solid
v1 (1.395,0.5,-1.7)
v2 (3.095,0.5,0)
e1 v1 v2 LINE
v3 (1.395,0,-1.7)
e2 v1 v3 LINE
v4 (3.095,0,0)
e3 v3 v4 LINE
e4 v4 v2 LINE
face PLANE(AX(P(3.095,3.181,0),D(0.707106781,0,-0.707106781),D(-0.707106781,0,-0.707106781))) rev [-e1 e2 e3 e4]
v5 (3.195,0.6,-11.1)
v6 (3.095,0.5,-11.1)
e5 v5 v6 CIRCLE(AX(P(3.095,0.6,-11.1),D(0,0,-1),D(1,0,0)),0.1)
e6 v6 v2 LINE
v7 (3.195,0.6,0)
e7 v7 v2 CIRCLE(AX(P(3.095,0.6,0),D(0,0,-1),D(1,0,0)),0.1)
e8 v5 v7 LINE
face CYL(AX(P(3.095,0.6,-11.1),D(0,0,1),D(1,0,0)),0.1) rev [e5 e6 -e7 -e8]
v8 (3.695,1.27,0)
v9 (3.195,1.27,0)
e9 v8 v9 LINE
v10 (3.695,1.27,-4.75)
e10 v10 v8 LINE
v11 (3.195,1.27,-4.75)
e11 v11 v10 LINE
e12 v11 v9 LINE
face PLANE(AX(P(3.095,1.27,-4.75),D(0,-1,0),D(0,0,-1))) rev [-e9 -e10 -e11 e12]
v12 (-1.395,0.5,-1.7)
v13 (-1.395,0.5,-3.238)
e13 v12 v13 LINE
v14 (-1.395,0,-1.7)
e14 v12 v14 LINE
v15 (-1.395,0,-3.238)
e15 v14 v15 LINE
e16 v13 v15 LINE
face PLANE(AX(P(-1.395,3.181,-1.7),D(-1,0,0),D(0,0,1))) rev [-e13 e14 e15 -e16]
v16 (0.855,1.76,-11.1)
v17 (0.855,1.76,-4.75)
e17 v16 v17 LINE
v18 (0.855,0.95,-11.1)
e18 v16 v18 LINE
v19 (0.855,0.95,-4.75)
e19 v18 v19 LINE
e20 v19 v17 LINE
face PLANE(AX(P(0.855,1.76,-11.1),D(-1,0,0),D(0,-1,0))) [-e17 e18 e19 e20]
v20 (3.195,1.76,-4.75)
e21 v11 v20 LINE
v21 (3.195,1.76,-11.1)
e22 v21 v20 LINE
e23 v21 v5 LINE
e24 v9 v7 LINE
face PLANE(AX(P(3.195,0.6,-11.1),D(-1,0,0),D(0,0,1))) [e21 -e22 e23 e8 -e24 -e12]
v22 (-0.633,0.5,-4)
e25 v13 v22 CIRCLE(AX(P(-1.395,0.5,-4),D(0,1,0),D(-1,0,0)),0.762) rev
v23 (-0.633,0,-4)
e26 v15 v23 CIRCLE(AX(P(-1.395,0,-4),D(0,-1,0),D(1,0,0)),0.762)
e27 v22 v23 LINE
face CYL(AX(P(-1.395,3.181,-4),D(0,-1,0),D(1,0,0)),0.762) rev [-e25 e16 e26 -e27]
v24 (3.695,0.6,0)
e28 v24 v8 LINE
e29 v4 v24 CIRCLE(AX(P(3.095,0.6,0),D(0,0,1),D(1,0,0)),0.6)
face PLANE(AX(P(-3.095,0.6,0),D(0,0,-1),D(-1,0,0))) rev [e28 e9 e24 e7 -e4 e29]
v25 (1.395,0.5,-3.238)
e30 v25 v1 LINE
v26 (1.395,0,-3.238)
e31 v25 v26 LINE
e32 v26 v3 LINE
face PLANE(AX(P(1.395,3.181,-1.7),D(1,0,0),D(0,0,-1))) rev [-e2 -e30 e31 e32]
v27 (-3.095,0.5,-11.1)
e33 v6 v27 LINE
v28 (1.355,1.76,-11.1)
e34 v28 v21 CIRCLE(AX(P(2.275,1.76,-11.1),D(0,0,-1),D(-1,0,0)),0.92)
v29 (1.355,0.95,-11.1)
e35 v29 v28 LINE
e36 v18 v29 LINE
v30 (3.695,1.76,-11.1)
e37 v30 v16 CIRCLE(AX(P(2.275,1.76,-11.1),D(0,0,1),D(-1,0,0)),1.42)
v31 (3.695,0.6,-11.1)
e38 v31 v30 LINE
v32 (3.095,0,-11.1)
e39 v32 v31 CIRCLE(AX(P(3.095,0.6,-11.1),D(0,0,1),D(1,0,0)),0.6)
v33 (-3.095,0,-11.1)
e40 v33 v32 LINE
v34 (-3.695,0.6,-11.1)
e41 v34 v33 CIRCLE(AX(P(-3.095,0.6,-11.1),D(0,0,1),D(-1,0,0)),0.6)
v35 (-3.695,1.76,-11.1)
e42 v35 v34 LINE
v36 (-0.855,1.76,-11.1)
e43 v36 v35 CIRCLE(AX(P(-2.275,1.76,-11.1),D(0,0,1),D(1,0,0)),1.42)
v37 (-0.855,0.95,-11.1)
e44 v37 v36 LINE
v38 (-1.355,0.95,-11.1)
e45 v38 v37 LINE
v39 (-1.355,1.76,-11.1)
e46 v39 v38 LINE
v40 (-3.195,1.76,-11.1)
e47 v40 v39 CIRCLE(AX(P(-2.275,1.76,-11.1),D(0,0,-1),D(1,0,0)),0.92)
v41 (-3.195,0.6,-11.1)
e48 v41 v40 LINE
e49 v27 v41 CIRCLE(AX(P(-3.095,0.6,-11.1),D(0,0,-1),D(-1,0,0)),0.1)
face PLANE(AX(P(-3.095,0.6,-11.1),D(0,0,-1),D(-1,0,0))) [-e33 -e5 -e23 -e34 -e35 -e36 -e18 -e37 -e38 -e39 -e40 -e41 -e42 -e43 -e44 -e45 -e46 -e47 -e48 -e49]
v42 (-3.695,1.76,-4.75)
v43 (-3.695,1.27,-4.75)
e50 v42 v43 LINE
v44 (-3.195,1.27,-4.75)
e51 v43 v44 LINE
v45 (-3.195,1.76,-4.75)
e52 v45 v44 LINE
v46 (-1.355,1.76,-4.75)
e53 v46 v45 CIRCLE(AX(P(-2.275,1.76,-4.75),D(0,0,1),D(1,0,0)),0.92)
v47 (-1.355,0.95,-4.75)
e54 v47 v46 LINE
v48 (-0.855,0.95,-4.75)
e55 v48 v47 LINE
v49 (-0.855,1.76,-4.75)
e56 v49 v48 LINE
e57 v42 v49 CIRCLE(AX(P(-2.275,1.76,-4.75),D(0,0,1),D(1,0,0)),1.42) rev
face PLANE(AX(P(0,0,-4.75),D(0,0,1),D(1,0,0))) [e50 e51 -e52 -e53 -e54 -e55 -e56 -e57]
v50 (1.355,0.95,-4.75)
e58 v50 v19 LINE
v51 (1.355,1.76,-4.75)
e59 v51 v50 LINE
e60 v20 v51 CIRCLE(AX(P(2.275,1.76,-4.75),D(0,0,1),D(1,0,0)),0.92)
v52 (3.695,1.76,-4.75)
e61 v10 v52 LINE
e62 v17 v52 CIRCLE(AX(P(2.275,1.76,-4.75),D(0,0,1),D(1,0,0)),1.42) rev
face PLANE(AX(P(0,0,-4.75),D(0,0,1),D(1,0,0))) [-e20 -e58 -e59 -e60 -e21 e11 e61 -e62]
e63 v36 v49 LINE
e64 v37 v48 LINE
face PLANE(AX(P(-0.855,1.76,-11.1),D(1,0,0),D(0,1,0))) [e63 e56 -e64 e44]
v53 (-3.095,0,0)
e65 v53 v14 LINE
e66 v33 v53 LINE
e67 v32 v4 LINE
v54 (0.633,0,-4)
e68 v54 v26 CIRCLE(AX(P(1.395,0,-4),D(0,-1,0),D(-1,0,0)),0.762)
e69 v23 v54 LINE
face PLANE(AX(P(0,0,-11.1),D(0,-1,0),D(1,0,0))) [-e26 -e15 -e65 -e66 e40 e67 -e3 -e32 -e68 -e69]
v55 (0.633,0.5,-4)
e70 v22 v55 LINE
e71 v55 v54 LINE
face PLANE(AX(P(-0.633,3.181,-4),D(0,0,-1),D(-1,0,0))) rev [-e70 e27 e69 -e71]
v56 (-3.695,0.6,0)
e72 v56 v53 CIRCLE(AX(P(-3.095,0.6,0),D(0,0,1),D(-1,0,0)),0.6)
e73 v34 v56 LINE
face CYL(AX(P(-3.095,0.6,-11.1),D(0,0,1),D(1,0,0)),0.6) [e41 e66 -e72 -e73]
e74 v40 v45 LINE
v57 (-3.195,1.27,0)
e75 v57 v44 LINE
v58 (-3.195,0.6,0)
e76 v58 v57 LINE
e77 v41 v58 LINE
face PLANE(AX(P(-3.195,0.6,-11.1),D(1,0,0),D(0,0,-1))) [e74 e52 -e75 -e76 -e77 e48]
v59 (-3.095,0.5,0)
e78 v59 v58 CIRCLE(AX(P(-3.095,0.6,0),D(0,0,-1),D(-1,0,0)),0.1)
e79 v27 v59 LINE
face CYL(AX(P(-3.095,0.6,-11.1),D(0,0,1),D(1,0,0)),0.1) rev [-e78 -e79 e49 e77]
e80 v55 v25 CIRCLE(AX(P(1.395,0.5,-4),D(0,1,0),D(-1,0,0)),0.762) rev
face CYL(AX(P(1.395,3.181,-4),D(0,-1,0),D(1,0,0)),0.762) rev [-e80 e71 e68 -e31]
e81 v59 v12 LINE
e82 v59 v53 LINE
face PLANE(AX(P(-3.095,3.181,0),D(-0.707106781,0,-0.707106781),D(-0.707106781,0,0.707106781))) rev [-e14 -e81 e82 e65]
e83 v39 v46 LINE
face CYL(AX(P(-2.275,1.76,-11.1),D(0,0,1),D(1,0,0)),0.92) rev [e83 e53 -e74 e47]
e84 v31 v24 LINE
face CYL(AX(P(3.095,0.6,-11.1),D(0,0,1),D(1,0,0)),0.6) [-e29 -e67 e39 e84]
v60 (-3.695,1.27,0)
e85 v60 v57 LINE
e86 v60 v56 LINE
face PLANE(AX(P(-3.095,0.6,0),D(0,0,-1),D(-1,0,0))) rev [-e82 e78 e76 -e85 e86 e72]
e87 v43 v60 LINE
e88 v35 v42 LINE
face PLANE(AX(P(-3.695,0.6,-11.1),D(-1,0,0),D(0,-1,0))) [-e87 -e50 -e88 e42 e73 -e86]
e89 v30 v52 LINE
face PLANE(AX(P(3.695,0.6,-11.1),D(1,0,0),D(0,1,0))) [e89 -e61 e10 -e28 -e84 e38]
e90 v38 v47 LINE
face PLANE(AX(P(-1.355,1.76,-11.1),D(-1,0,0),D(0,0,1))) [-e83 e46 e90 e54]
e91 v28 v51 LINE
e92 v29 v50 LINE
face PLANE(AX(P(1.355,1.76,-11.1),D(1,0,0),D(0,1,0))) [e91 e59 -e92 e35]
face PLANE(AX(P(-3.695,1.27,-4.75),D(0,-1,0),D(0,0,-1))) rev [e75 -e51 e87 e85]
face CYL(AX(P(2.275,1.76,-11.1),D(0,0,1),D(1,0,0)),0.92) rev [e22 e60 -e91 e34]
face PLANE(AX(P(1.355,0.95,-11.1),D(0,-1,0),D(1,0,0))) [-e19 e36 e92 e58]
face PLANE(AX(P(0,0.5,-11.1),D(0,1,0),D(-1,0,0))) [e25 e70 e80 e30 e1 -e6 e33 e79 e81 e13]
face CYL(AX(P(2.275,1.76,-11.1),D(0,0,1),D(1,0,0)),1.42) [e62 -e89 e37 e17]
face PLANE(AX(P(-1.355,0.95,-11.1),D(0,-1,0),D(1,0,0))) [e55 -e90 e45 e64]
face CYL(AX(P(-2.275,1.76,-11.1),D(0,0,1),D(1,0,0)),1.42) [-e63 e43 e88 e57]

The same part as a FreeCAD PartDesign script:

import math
import FreeCAD as App
import Part
import Sketcher


def add_polygon(sketch, points):
    """Adds a closed chain of lines whose ends are joined by coincident constraints."""
    first, n = sketch.GeometryCount, len(points)
    for a, b in zip(points, points[1:] + points[:1]):
        sketch.addGeometry(Part.LineSegment(App.Vector(*a, 0), App.Vector(*b, 0)), False)
    for i in range(n):
        sketch.addConstraint(Sketcher.Constraint("Coincident", first + i, 2, first + (i + 1) % n, 1))

doc = App.newDocument("Part")
body = doc.addObject("PartDesign::Body", "Body")

sketch1 = doc.addObject("Sketcher::SketchObject", "Sketch")
body.addObject(sketch1)
sketch1.AttachmentSupport = (doc.XY_Plane, [""])
sketch1.MapMode = "FlatFace"
sketch1.addGeometry(Part.ArcOfCircle(Part.Circle(App.Vector(-3.1, 0.6, 0), App.Vector(0, 0, 1), 0.6), math.radians(180), math.radians(270)), False)
sketch1.addGeometry(Part.LineSegment(App.Vector(-3.1, 0, 0), App.Vector(3.1, 0, 0)), False)
sketch1.addGeometry(Part.ArcOfCircle(Part.Circle(App.Vector(3.1, 0.6, 0), App.Vector(0, 0, 1), 0.6), math.radians(-90), math.radians(0)), False)
sketch1.addGeometry(Part.LineSegment(App.Vector(3.69, 0.6, 0), App.Vector(3.69, 1.76, 0)), False)
sketch1.addGeometry(Part.ArcOfCircle(Part.Circle(App.Vector(2.27, 1.76, 0), App.Vector(0, 0, 1), 1.42), math.radians(0), math.radians(180)), False)
sketch1.addGeometry(Part.LineSegment(App.Vector(0.85, 1.76, 0), App.Vector(0.85, 0.95, 0)), False)
sketch1.addGeometry(Part.LineSegment(App.Vector(0.85, 0.95, 0), App.Vector(1.35, 0.95, 0)), False)
sketch1.addGeometry(Part.LineSegment(App.Vector(1.35, 0.95, 0), App.Vector(1.35, 1.76, 0)), False)
sketch1.addGeometry(Part.ArcOfCircle(Part.Circle(App.Vector(2.27, 1.76, 0), App.Vector(0, 0, 1), 0.92), math.radians(0), math.radians(180)), False)
sketch1.addGeometry(Part.LineSegment(App.Vector(3.19, 1.76, 0), App.Vector(3.19, 0.6, 0)), False)
sketch1.addGeometry(Part.ArcOfCircle(Part.Circle(App.Vector(3.1, 0.6, 0), App.Vector(0, 0, 1), 0.1), math.radians(-90), math.radians(0)), False)
sketch1.addGeometry(Part.LineSegment(App.Vector(3.1, 0.5, 0), App.Vector(-3.1, 0.5, 0)), False)
sketch1.addGeometry(Part.ArcOfCircle(Part.Circle(App.Vector(-3.1, 0.6, 0), App.Vector(0, 0, 1), 0.1), math.radians(180), math.radians(270)), False)
sketch1.addGeometry(Part.LineSegment(App.Vector(-3.19, 0.6, 0), App.Vector(-3.19, 1.76, 0)), False)
sketch1.addGeometry(Part.ArcOfCircle(Part.Circle(App.Vector(-2.27, 1.76, 0), App.Vector(0, 0, 1), 0.92), math.radians(0), math.radians(180)), False)
sketch1.addGeometry(Part.LineSegment(App.Vector(-1.35, 1.76, 0), App.Vector(-1.35, 0.95, 0)), False)
sketch1.addGeometry(Part.LineSegment(App.Vector(-1.35, 0.95, 0), App.Vector(-0.85, 0.95, 0)), False)
sketch1.addGeometry(Part.LineSegment(App.Vector(-0.85, 0.95, 0), App.Vector(-0.85, 1.76, 0)), False)
sketch1.addGeometry(Part.ArcOfCircle(Part.Circle(App.Vector(-2.27, 1.76, 0), App.Vector(0, 0, 1), 1.42), math.radians(0), math.radians(180)), False)
sketch1.addGeometry(Part.LineSegment(App.Vector(-3.69, 1.76, 0), App.Vector(-3.69, 0.6, 0)), False)
sketch1.addConstraint(Sketcher.Constraint("Tangent", 0, 2, 1, 1))
sketch1.addConstraint(Sketcher.Constraint("Tangent", 1, 2, 2, 1))
sketch1.addConstraint(Sketcher.Constraint("Tangent", 2, 2, 3, 1))
sketch1.addConstraint(Sketcher.Constraint("Tangent", 3, 2, 4, 1))
sketch1.addConstraint(Sketcher.Constraint("Tangent", 4, 2, 5, 1))
sketch1.addConstraint(Sketcher.Constraint("Coincident", 5, 2, 6, 1))
sketch1.addConstraint(Sketcher.Constraint("Coincident", 6, 2, 7, 1))
sketch1.addConstraint(Sketcher.Constraint("Tangent", 7, 2, 8, 2))
sketch1.addConstraint(Sketcher.Constraint("Tangent", 8, 1, 9, 1))
sketch1.addConstraint(Sketcher.Constraint("Tangent", 9, 2, 10, 2))
sketch1.addConstraint(Sketcher.Constraint("Tangent", 10, 1, 11, 1))
sketch1.addConstraint(Sketcher.Constraint("Tangent", 11, 2, 12, 2))
sketch1.addConstraint(Sketcher.Constraint("Tangent", 12, 1, 13, 1))
sketch1.addConstraint(Sketcher.Constraint("Tangent", 13, 2, 14, 2))
sketch1.addConstraint(Sketcher.Constraint("Tangent", 14, 1, 15, 1))
sketch1.addConstraint(Sketcher.Constraint("Coincident", 15, 2, 16, 1))
sketch1.addConstraint(Sketcher.Constraint("Coincident", 16, 2, 17, 1))
sketch1.addConstraint(Sketcher.Constraint("Tangent", 17, 2, 18, 1))
sketch1.addConstraint(Sketcher.Constraint("Tangent", 18, 2, 19, 1))
sketch1.addConstraint(Sketcher.Constraint("Tangent", 19, 2, 0, 1))
sketch1.addConstraint(Sketcher.Constraint("Horizontal", 1))
sketch1.addConstraint(Sketcher.Constraint("Vertical", 3))
sketch1.addConstraint(Sketcher.Constraint("Vertical", 5))
sketch1.addConstraint(Sketcher.Constraint("Horizontal", 6))
sketch1.addConstraint(Sketcher.Constraint("Vertical", 7))
sketch1.addConstraint(Sketcher.Constraint("Vertical", 9))
sketch1.addConstraint(Sketcher.Constraint("Horizontal", 11))
sketch1.addConstraint(Sketcher.Constraint("Vertical", 13))
sketch1.addConstraint(Sketcher.Constraint("Vertical", 15))
sketch1.addConstraint(Sketcher.Constraint("Horizontal", 16))
sketch1.addConstraint(Sketcher.Constraint("Vertical", 17))
sketch1.addConstraint(Sketcher.Constraint("Vertical", 19))
sketch1.addConstraint(Sketcher.Constraint("Coincident", 8, 3, 4, 3))
sketch1.addConstraint(Sketcher.Constraint("Coincident", 10, 3, 2, 3))
sketch1.addConstraint(Sketcher.Constraint("Coincident", 12, 3, 0, 3))
sketch1.addConstraint(Sketcher.Constraint("Coincident", 18, 3, 14, 3))
sketch1.addConstraint(Sketcher.Constraint("Equal", 0, 2))
sketch1.addConstraint(Sketcher.Constraint("Equal", 8, 14))
sketch1.addConstraint(Sketcher.Constraint("Symmetric", 0, 2, 1, 2, -1, 1))
sketch1.addConstraint(Sketcher.Constraint("Horizontal", 8, 3, 14, 3))
sketch1.addConstraint(Sketcher.Constraint("Horizontal", 6, 2, 15, 2))
sketch1.addConstraint(Sketcher.Constraint("Radius", 0, 0.6))
sketch1.addConstraint(Sketcher.Constraint("Radius", 10, 0.1))
sketch1.addConstraint(Sketcher.Constraint("Radius", 4, 1.42))
sketch1.addConstraint(Sketcher.Constraint("DistanceX", 1, 1, 1, 2, 6.19))
sketch1.addConstraint(Sketcher.Constraint("DistanceY", 3, 1, 3, 2, 1.16))
sketch1.addConstraint(Sketcher.Constraint("DistanceY", 5, 2, 5, 1, 0.81))
pad1 = doc.addObject("PartDesign::Pad", "Pad")
body.addObject(pad1)
pad1.Profile = sketch1
pad1.Length = 11.1
pad1.Reversed = True

sketch2 = doc.addObject("Sketcher::SketchObject", "Sketch001")
body.addObject(sketch2)
sketch2.AttachmentSupport = (doc.XZ_Plane, [""])
sketch2.MapMode = "FlatFace"
sketch2.addGeometry(Part.LineSegment(App.Vector(-3.1, 0, 0), App.Vector(-1.4, -1.7, 0)), False)
sketch2.addGeometry(Part.LineSegment(App.Vector(-1.4, -1.7, 0), App.Vector(-1.4, -3.2, 0)), False)
sketch2.addGeometry(Part.ArcOfCircle(Part.Circle(App.Vector(-1.4, -4, 0), App.Vector(0, 0, 1), 0.8), math.radians(90), math.radians(360)), False)
sketch2.addGeometry(Part.LineSegment(App.Vector(-0.6, -4, 0), App.Vector(0.6, -4, 0)), False)
sketch2.addGeometry(Part.ArcOfCircle(Part.Circle(App.Vector(1.4, -4, 0), App.Vector(0, 0, 1), 0.8), math.radians(180), math.radians(450)), False)
sketch2.addGeometry(Part.LineSegment(App.Vector(1.4, -3.2, 0), App.Vector(1.4, -1.7, 0)), False)
sketch2.addGeometry(Part.LineSegment(App.Vector(1.4, -1.7, 0), App.Vector(3.1, 0, 0)), False)
sketch2.addGeometry(Part.LineSegment(App.Vector(3.1, 0, 0), App.Vector(3.1, 0.5, 0)), False)
sketch2.addGeometry(Part.LineSegment(App.Vector(3.1, 0.5, 0), App.Vector(-3.1, 0.5, 0)), False)
sketch2.addGeometry(Part.LineSegment(App.Vector(-3.1, 0.5, 0), App.Vector(-3.1, 0, 0)), False)
sketch2.addConstraint(Sketcher.Constraint("Coincident", 0, 2, 1, 1))
sketch2.addConstraint(Sketcher.Constraint("Coincident", 1, 2, 2, 1))
sketch2.addConstraint(Sketcher.Constraint("Coincident", 2, 2, 3, 1))
sketch2.addConstraint(Sketcher.Constraint("Coincident", 3, 2, 4, 1))
sketch2.addConstraint(Sketcher.Constraint("Coincident", 4, 2, 5, 1))
sketch2.addConstraint(Sketcher.Constraint("Coincident", 5, 2, 6, 1))
sketch2.addConstraint(Sketcher.Constraint("Coincident", 6, 2, 7, 1))
sketch2.addConstraint(Sketcher.Constraint("Coincident", 7, 2, 8, 1))
sketch2.addConstraint(Sketcher.Constraint("Coincident", 8, 2, 9, 1))
sketch2.addConstraint(Sketcher.Constraint("Coincident", 9, 2, 0, 1))
sketch2.addConstraint(Sketcher.Constraint("Vertical", 1))
sketch2.addConstraint(Sketcher.Constraint("Horizontal", 3))
sketch2.addConstraint(Sketcher.Constraint("Vertical", 5))
sketch2.addConstraint(Sketcher.Constraint("Vertical", 7))
sketch2.addConstraint(Sketcher.Constraint("Horizontal", 8))
sketch2.addConstraint(Sketcher.Constraint("Vertical", 9))
sketch2.addConstraint(Sketcher.Constraint("Equal", 2, 4))
sketch2.addConstraint(Sketcher.Constraint("Symmetric", 6, 2, 9, 2, -1, 1))
sketch2.addConstraint(Sketcher.Constraint("Symmetric", 2, 3, 4, 3, -2))
sketch2.addConstraint(Sketcher.Constraint("Symmetric", 0, 2, 5, 2, -2))
sketch2.addConstraint(Sketcher.Constraint("PointOnObject", 6, 2, -1))
sketch2.addConstraint(Sketcher.Constraint("Perpendicular", 0, 6))
sketch2.addConstraint(Sketcher.Constraint("Horizontal", 4, 3, 2, 2))
sketch2.addConstraint(Sketcher.Constraint("Vertical", 2, 3, 0, 2))
sketch2.addConstraint(Sketcher.Constraint("DistanceY", 2, 3, -1, 1, 4.0))
sketch2.addConstraint(Sketcher.Constraint("Radius", 2, 0.762))
sketch2.addConstraint(Sketcher.Constraint("DistanceX", 8, 2, 8, 1, 6.19))
sketch2.addConstraint(Sketcher.Constraint("DistanceY", 0, 2, -1, 1, 1.7))
sketch2.addConstraint(Sketcher.Constraint("DistanceY", 7, 1, 7, 2, 0.537501))
pocket1 = doc.addObject("PartDesign::Pocket", "Pocket")
body.addObject(pocket1)
pocket1.Profile = sketch2
pocket1.Type = "UpToFirst"

sketch3 = doc.addObject("Sketcher::SketchObject", "Sketch002")
body.addObject(sketch3)
sketch3.AttachmentSupport = (doc.XY_Plane, [""])
sketch3.MapMode = "FlatFace"
add_polygon(sketch3, [(3.7, 3.3), (-3.7, 3.3), (-3.7, 1.3), (-3.1, 1.3), (-3.1, 0.8), (3.1, 0.8), (3.1, 1.3), (3.7, 1.3)])
sketch3.addConstraint(Sketcher.Constraint("Horizontal", 0))
sketch3.addConstraint(Sketcher.Constraint("Vertical", 1))
sketch3.addConstraint(Sketcher.Constraint("Horizontal", 2))
sketch3.addConstraint(Sketcher.Constraint("Vertical", 3))
sketch3.addConstraint(Sketcher.Constraint("Horizontal", 4))
sketch3.addConstraint(Sketcher.Constraint("Vertical", 5))
sketch3.addConstraint(Sketcher.Constraint("Horizontal", 6))
sketch3.addConstraint(Sketcher.Constraint("Vertical", 7))
sketch3.addConstraint(Sketcher.Constraint("Symmetric", 2, 2, 5, 2, -2))
sketch3.addConstraint(Sketcher.Constraint("Equal", 2, 6))
sketch3.addConstraint(Sketcher.Constraint("DistanceX", 2, 1, 2, 2, 0.6))
sketch3.addConstraint(Sketcher.Constraint("DistanceY", 3, 2, 3, 1, 0.5))
sketch3.addConstraint(Sketcher.Constraint("DistanceX", 0, 2, 0, 1, 7.39))
sketch3.addConstraint(Sketcher.Constraint("DistanceY", -1, 1, 1, 2, 1.27))
sketch3.addConstraint(Sketcher.Constraint("DistanceY", 1, 2, 1, 1, 2.041725))
pocket2 = doc.addObject("PartDesign::Pocket", "Pocket001")
body.addObject(pocket2)
pocket2.Profile = sketch3
pocket2.Length = 4.75

doc.recompute()
